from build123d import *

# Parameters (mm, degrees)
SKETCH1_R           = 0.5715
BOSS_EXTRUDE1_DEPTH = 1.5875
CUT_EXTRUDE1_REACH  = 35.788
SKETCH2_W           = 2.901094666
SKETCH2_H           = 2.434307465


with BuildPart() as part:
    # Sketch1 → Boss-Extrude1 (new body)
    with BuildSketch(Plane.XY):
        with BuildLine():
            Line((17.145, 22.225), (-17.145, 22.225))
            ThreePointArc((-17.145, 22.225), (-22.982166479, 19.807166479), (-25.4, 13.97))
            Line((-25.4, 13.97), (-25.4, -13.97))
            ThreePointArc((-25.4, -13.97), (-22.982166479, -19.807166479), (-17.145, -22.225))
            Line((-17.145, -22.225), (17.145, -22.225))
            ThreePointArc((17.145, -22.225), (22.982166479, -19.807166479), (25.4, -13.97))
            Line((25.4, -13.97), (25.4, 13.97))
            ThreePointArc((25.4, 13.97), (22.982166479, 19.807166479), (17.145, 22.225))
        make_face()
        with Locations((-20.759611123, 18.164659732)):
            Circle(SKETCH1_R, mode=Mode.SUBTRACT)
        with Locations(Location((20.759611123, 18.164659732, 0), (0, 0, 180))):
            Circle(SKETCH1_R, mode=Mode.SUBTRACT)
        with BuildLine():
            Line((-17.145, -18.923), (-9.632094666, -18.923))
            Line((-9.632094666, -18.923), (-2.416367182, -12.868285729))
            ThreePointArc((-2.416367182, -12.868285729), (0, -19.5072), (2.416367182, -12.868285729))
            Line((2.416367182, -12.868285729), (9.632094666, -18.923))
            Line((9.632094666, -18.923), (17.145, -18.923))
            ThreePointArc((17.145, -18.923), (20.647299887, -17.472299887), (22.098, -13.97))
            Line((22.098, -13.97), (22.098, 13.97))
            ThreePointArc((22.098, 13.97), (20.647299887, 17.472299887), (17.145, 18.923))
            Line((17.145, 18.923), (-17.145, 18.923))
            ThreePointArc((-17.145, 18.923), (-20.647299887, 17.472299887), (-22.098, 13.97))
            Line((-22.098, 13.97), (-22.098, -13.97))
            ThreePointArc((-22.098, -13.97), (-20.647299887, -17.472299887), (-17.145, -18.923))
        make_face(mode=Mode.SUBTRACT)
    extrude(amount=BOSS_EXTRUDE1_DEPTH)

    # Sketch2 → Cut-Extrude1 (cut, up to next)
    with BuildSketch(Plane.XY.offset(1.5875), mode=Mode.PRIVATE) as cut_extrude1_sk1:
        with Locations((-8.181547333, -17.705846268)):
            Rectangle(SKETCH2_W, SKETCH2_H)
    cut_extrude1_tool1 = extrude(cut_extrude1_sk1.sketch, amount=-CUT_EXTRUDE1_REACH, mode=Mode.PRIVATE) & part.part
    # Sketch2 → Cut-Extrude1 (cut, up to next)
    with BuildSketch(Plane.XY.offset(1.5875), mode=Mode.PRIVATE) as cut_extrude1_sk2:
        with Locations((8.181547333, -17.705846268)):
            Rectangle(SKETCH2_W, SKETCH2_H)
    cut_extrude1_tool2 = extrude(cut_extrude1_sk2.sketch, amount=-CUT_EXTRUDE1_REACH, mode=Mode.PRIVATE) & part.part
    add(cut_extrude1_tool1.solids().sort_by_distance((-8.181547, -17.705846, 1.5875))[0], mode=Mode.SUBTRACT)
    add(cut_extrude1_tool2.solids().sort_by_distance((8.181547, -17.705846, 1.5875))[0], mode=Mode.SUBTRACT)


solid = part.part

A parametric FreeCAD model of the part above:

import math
import FreeCAD as App
import Part
import Sketcher
from FreeCAD import Vector
Q = App.Units.Quantity

doc = App.newDocument("Part")
body = doc.addObject("PartDesign::Body", "Body")

sketch1 = body.newObject("Sketcher::SketchObject", "Sketch")
sketch1.AttachmentSupport = (doc.getObject("XY_Plane"), [""])
sketch1.MapMode = "FlatFace"
sketch1.addGeometry(Part.LineSegment(Vector(17.1, 22.2, 0), Vector(-17.1, 22.2, 0)), False)
sketch1.addGeometry(Part.ArcOfCircle(Part.Circle(Vector(-17.1, 14, 0), Vector(0, 0, 1), 8.3), math.radians(90), math.radians(180)), False)
sketch1.addGeometry(Part.LineSegment(Vector(-25.4, 14, 0), Vector(-25.4, -14, 0)), False)
sketch1.addGeometry(Part.ArcOfCircle(Part.Circle(Vector(-17.1, -14, 0), Vector(0, 0, 1), 8.3), math.radians(180), math.radians(270)), False)
sketch1.addGeometry(Part.LineSegment(Vector(-17.1, -22.2, 0), Vector(17.1, -22.2, 0)), False)
sketch1.addGeometry(Part.ArcOfCircle(Part.Circle(Vector(17.1, -14, 0), Vector(0, 0, 1), 8.3), math.radians(-90), math.radians(0)), False)
sketch1.addGeometry(Part.LineSegment(Vector(25.4, -14, 0), Vector(25.4, 14, 0)), False)
sketch1.addGeometry(Part.ArcOfCircle(Part.Circle(Vector(17.1, 14, 0), Vector(0, 0, 1), 8.3), math.radians(0), math.radians(90)), False)
sketch1.addGeometry(Part.LineSegment(Vector(-9.6, -18.9, 0), Vector(-17.1, -18.9, 0)), False)
sketch1.addGeometry(Part.ArcOfCircle(Part.Circle(Vector(-17.1, -14, 0), Vector(0, 0, 1), 5), math.radians(-180), math.radians(-90)), False)
sketch1.addGeometry(Part.LineSegment(Vector(-22.1, -14, 0), Vector(-22.1, 14, 0)), False)
sketch1.addGeometry(Part.ArcOfCircle(Part.Circle(Vector(-17.1, 14, 0), Vector(0, 0, 1), 5), math.radians(90), math.radians(180)), False)
sketch1.addGeometry(Part.LineSegment(Vector(-17.1, 18.9, 0), Vector(17.1, 18.9, 0)), False)
sketch1.addGeometry(Part.ArcOfCircle(Part.Circle(Vector(17.1, 14, 0), Vector(0, 0, 1), 5), math.radians(0), math.radians(90)), False)
sketch1.addGeometry(Part.LineSegment(Vector(22.1, 14, 0), Vector(22.1, -14, 0)), False)
sketch1.addGeometry(Part.ArcOfCircle(Part.Circle(Vector(17.1, -14, 0), Vector(0, 0, 1), 5), math.radians(-90), math.radians(0)), False)
sketch1.addGeometry(Part.LineSegment(Vector(17.1, -18.9, 0), Vector(9.6, -18.9, 0)), False)
sketch1.addGeometry(Part.LineSegment(Vector(9.6, -18.9, 0), Vector(2.4, -12.9, 0)), False)
sketch1.addGeometry(Part.ArcOfCircle(Part.Circle(Vector(0, -15.7, 0), Vector(0, 0, 1), 3.8), math.radians(130), math.radians(410)), False)
sketch1.addGeometry(Part.LineSegment(Vector(-2.4, -12.9, 0), Vector(-9.6, -18.9, 0)), False)
sketch1.addGeometry(Part.Circle(Vector(-20.8, 18.2, 0), Vector(0, 0, 1), 0.6), False)
sketch1.addGeometry(Part.Circle(Vector(20.8, 18.2, 0), Vector(0, 0, 1), 0.6), False)
sketch1.addConstraint(Sketcher.Constraint("Tangent", 0, 2, 1, 1))
sketch1.addConstraint(Sketcher.Constraint("Tangent", 1, 2, 2, 1))
sketch1.addConstraint(Sketcher.Constraint("Tangent", 2, 2, 3, 1))
sketch1.addConstraint(Sketcher.Constraint("Tangent", 3, 2, 4, 1))
sketch1.addConstraint(Sketcher.Constraint("Tangent", 4, 2, 5, 1))
sketch1.addConstraint(Sketcher.Constraint("Tangent", 5, 2, 6, 1))
sketch1.addConstraint(Sketcher.Constraint("Tangent", 6, 2, 7, 1))
sketch1.addConstraint(Sketcher.Constraint("Tangent", 7, 2, 0, 1))
sketch1.addConstraint(Sketcher.Constraint("Tangent", 8, 2, 9, 2))
sketch1.addConstraint(Sketcher.Constraint("Tangent", 9, 1, 10, 1))
sketch1.addConstraint(Sketcher.Constraint("Tangent", 10, 2, 11, 2))
sketch1.addConstraint(Sketcher.Constraint("Tangent", 11, 1, 12, 1))
sketch1.addConstraint(Sketcher.Constraint("Tangent", 12, 2, 13, 2))
sketch1.addConstraint(Sketcher.Constraint("Tangent", 13, 1, 14, 1))
sketch1.addConstraint(Sketcher.Constraint("Tangent", 14, 2, 15, 2))
sketch1.addConstraint(Sketcher.Constraint("Tangent", 15, 1, 16, 1))
sketch1.addConstraint(Sketcher.Constraint("Coincident", 16, 2, 17, 1))
sketch1.addConstraint(Sketcher.Constraint("Tangent", 17, 2, 18, 2))
sketch1.addConstraint(Sketcher.Constraint("Tangent", 18, 1, 19, 1))
sketch1.addConstraint(Sketcher.Constraint("Coincident", 19, 2, 8, 1))
sketch1.addConstraint(Sketcher.Constraint("Horizontal", 0))
sketch1.addConstraint(Sketcher.Constraint("Vertical", 2))
sketch1.addConstraint(Sketcher.Constraint("Horizontal", 4))
sketch1.addConstraint(Sketcher.Constraint("Vertical", 6))
sketch1.addConstraint(Sketcher.Constraint("Horizontal", 8))
sketch1.addConstraint(Sketcher.Constraint("Vertical", 10))
sketch1.addConstraint(Sketcher.Constraint("Horizontal", 12))
sketch1.addConstraint(Sketcher.Constraint("Vertical", 14))
sketch1.addConstraint(Sketcher.Constraint("Horizontal", 16))
sketch1.addConstraint(Sketcher.Constraint("Coincident", 9, 3, 3, 3))
sketch1.addConstraint(Sketcher.Constraint("Coincident", 11, 3, 1, 3))
sketch1.addConstraint(Sketcher.Constraint("Coincident", 13, 3, 7, 3))
sketch1.addConstraint(Sketcher.Constraint("Coincident", 15, 3, 5, 3))
sketch1.addConstraint(Sketcher.Constraint("Equal", 1, 3))
sketch1.addConstraint(Sketcher.Constraint("Equal", 3, 5))
sketch1.addConstraint(Sketcher.Constraint("Equal", 5, 7))
sketch1.addConstraint(Sketcher.Constraint("Equal", 20, 21))
sketch1.addConstraint(Sketcher.Constraint("Symmetric", 1, 3, 5, 3, -1, 1))
sketch1.addConstraint(Sketcher.Constraint("Symmetric", 20, 3, 21, 3, -2))
sketch1.addConstraint(Sketcher.Constraint("Symmetric", 17, 2, 18, 1, -2))
sketch1.addConstraint(Sketcher.Constraint("Diameter", 20, Q("0.045 in")))
sketch1.addConstraint(Sketcher.Constraint("DistanceY", 2, 2, 2, 1, Q("1.1 in")))
sketch1.addConstraint(Sketcher.Constraint("DistanceX", 1, 2, -1, 1, Q("1 in")))
sketch1.addConstraint(Sketcher.Constraint("Angle", 17, Q("140 deg")))
sketch1.addConstraint(Sketcher.Constraint("Radius", 1, Q("0.325 in")))
sketch1.addConstraint(Sketcher.Constraint("Radius", 9, Q("0.195 in")))
sketch1.addConstraint(Sketcher.Constraint("Radius", 18, Q("0.148 in")))
sketch1.addConstraint(Sketcher.Constraint("DistanceY", 18, 3, -1, 1, Q("0.62 in")))
sketch1.addConstraint(Sketcher.Constraint("DistanceX", 20, 3, -1, 1, 20.759611))
sketch1.addConstraint(Sketcher.Constraint("DistanceY", -1, 1, 20, 3, 18.16466))
pad1 = body.newObject("PartDesign::Pad", "Pad")
pad1.Profile = sketch1
pad1.Length = Q("0.0625 in")

sketch2 = body.newObject("Sketcher::SketchObject", "Sketch001")
sketch2.AttachmentSupport = (doc.getObject("XY_Plane"), [""])
sketch2.MapMode = "FlatFace"
sketch2.AttachmentOffset = App.Placement(Vector(0, 0, 0.0625 * 25.4), App.Rotation())
sketch2.addGeometry(Part.LineSegment(Vector(-9.6, -16.5, 0), Vector(-9.6, -18.9, 0)), False)
sketch2.addGeometry(Part.LineSegment(Vector(-9.6, -18.9, 0), Vector(-6.7, -18.9, 0)), False)
sketch2.addGeometry(Part.LineSegment(Vector(-6.7, -18.9, 0), Vector(-6.7, -16.5, 0)), False)
sketch2.addGeometry(Part.LineSegment(Vector(-6.7, -16.5, 0), Vector(-9.6, -16.5, 0)), False)
sketch2.addConstraint(Sketcher.Constraint("Coincident", 0, 2, 1, 1))
sketch2.addConstraint(Sketcher.Constraint("Coincident", 1, 2, 2, 1))
sketch2.addConstraint(Sketcher.Constraint("Coincident", 2, 2, 3, 1))
sketch2.addConstraint(Sketcher.Constraint("Coincident", 3, 2, 0, 1))
sketch2.addConstraint(Sketcher.Constraint("Vertical", 0))
sketch2.addConstraint(Sketcher.Constraint("Horizontal", 1))
sketch2.addConstraint(Sketcher.Constraint("Vertical", 2))
sketch2.addConstraint(Sketcher.Constraint("Horizontal", 3))
sketch2.addConstraint(Sketcher.Constraint("DistanceY", 0, 2, -1, 1, Q("0.745 in")))
sketch2.addConstraint(Sketcher.Constraint("DistanceX", 1, 2, -1, 1, Q("0.265 in")))
sketch2.addConstraint(Sketcher.Constraint("DistanceX", 1, 1, 1, 2, 2.901095))
sketch2.addConstraint(Sketcher.Constraint("DistanceY", 0, 2, 0, 1, 2.434307))
pocket1 = body.newObject("PartDesign::Pocket", "Pocket")
pocket1.Profile = sketch2
pocket1.Type = "UpToFirst"

sketch3 = body.newObject("Sketcher::SketchObject", "Sketch002")
sketch3.AttachmentSupport = (doc.getObject("XY_Plane"), [""])
sketch3.MapMode = "FlatFace"
sketch3.AttachmentOffset = App.Placement(Vector(0, 0, 0.0625 * 25.4), App.Rotation())
sketch3.addGeometry(Part.LineSegment(Vector(6.7, -16.5, 0), Vector(6.7, -18.9, 0)), False)
sketch3.addGeometry(Part.LineSegment(Vector(6.7, -18.9, 0), Vector(9.6, -18.9, 0)), False)
sketch3.addGeometry(Part.LineSegment(Vector(9.6, -18.9, 0), Vector(9.6, -16.5, 0)), False)
sketch3.addGeometry(Part.LineSegment(Vector(9.6, -16.5, 0), Vector(6.7, -16.5, 0)), False)
sketch3.addConstraint(Sketcher.Constraint("Coincident", 0, 2, 1, 1))
sketch3.addConstraint(Sketcher.Constraint("Coincident", 1, 2, 2, 1))
sketch3.addConstraint(Sketcher.Constraint("Coincident", 2, 2, 3, 1))
sketch3.addConstraint(Sketcher.Constraint("Coincident", 3, 2, 0, 1))
sketch3.addConstraint(Sketcher.Constraint("Vertical", 0))
sketch3.addConstraint(Sketcher.Constraint("Horizontal", 1))
sketch3.addConstraint(Sketcher.Constraint("Vertical", 2))
sketch3.addConstraint(Sketcher.Constraint("Horizontal", 3))
sketch3.addConstraint(Sketcher.Constraint("DistanceX", -1, 1, 0, 2, Q("0.265 in")))
sketch3.addConstraint(Sketcher.Constraint("DistanceY", 0, 2, -1, 1, Q("0.745 in")))
sketch3.addConstraint(Sketcher.Constraint("DistanceX", 1, 1, 1, 2, 2.901095))
sketch3.addConstraint(Sketcher.Constraint("DistanceY", 0, 2, 0, 1, 2.434307))
pocket2 = body.newObject("PartDesign::Pocket", "Pocket001")
pocket2.Profile = sketch3
pocket2.Type = "UpToFirst"

doc.recompute()
